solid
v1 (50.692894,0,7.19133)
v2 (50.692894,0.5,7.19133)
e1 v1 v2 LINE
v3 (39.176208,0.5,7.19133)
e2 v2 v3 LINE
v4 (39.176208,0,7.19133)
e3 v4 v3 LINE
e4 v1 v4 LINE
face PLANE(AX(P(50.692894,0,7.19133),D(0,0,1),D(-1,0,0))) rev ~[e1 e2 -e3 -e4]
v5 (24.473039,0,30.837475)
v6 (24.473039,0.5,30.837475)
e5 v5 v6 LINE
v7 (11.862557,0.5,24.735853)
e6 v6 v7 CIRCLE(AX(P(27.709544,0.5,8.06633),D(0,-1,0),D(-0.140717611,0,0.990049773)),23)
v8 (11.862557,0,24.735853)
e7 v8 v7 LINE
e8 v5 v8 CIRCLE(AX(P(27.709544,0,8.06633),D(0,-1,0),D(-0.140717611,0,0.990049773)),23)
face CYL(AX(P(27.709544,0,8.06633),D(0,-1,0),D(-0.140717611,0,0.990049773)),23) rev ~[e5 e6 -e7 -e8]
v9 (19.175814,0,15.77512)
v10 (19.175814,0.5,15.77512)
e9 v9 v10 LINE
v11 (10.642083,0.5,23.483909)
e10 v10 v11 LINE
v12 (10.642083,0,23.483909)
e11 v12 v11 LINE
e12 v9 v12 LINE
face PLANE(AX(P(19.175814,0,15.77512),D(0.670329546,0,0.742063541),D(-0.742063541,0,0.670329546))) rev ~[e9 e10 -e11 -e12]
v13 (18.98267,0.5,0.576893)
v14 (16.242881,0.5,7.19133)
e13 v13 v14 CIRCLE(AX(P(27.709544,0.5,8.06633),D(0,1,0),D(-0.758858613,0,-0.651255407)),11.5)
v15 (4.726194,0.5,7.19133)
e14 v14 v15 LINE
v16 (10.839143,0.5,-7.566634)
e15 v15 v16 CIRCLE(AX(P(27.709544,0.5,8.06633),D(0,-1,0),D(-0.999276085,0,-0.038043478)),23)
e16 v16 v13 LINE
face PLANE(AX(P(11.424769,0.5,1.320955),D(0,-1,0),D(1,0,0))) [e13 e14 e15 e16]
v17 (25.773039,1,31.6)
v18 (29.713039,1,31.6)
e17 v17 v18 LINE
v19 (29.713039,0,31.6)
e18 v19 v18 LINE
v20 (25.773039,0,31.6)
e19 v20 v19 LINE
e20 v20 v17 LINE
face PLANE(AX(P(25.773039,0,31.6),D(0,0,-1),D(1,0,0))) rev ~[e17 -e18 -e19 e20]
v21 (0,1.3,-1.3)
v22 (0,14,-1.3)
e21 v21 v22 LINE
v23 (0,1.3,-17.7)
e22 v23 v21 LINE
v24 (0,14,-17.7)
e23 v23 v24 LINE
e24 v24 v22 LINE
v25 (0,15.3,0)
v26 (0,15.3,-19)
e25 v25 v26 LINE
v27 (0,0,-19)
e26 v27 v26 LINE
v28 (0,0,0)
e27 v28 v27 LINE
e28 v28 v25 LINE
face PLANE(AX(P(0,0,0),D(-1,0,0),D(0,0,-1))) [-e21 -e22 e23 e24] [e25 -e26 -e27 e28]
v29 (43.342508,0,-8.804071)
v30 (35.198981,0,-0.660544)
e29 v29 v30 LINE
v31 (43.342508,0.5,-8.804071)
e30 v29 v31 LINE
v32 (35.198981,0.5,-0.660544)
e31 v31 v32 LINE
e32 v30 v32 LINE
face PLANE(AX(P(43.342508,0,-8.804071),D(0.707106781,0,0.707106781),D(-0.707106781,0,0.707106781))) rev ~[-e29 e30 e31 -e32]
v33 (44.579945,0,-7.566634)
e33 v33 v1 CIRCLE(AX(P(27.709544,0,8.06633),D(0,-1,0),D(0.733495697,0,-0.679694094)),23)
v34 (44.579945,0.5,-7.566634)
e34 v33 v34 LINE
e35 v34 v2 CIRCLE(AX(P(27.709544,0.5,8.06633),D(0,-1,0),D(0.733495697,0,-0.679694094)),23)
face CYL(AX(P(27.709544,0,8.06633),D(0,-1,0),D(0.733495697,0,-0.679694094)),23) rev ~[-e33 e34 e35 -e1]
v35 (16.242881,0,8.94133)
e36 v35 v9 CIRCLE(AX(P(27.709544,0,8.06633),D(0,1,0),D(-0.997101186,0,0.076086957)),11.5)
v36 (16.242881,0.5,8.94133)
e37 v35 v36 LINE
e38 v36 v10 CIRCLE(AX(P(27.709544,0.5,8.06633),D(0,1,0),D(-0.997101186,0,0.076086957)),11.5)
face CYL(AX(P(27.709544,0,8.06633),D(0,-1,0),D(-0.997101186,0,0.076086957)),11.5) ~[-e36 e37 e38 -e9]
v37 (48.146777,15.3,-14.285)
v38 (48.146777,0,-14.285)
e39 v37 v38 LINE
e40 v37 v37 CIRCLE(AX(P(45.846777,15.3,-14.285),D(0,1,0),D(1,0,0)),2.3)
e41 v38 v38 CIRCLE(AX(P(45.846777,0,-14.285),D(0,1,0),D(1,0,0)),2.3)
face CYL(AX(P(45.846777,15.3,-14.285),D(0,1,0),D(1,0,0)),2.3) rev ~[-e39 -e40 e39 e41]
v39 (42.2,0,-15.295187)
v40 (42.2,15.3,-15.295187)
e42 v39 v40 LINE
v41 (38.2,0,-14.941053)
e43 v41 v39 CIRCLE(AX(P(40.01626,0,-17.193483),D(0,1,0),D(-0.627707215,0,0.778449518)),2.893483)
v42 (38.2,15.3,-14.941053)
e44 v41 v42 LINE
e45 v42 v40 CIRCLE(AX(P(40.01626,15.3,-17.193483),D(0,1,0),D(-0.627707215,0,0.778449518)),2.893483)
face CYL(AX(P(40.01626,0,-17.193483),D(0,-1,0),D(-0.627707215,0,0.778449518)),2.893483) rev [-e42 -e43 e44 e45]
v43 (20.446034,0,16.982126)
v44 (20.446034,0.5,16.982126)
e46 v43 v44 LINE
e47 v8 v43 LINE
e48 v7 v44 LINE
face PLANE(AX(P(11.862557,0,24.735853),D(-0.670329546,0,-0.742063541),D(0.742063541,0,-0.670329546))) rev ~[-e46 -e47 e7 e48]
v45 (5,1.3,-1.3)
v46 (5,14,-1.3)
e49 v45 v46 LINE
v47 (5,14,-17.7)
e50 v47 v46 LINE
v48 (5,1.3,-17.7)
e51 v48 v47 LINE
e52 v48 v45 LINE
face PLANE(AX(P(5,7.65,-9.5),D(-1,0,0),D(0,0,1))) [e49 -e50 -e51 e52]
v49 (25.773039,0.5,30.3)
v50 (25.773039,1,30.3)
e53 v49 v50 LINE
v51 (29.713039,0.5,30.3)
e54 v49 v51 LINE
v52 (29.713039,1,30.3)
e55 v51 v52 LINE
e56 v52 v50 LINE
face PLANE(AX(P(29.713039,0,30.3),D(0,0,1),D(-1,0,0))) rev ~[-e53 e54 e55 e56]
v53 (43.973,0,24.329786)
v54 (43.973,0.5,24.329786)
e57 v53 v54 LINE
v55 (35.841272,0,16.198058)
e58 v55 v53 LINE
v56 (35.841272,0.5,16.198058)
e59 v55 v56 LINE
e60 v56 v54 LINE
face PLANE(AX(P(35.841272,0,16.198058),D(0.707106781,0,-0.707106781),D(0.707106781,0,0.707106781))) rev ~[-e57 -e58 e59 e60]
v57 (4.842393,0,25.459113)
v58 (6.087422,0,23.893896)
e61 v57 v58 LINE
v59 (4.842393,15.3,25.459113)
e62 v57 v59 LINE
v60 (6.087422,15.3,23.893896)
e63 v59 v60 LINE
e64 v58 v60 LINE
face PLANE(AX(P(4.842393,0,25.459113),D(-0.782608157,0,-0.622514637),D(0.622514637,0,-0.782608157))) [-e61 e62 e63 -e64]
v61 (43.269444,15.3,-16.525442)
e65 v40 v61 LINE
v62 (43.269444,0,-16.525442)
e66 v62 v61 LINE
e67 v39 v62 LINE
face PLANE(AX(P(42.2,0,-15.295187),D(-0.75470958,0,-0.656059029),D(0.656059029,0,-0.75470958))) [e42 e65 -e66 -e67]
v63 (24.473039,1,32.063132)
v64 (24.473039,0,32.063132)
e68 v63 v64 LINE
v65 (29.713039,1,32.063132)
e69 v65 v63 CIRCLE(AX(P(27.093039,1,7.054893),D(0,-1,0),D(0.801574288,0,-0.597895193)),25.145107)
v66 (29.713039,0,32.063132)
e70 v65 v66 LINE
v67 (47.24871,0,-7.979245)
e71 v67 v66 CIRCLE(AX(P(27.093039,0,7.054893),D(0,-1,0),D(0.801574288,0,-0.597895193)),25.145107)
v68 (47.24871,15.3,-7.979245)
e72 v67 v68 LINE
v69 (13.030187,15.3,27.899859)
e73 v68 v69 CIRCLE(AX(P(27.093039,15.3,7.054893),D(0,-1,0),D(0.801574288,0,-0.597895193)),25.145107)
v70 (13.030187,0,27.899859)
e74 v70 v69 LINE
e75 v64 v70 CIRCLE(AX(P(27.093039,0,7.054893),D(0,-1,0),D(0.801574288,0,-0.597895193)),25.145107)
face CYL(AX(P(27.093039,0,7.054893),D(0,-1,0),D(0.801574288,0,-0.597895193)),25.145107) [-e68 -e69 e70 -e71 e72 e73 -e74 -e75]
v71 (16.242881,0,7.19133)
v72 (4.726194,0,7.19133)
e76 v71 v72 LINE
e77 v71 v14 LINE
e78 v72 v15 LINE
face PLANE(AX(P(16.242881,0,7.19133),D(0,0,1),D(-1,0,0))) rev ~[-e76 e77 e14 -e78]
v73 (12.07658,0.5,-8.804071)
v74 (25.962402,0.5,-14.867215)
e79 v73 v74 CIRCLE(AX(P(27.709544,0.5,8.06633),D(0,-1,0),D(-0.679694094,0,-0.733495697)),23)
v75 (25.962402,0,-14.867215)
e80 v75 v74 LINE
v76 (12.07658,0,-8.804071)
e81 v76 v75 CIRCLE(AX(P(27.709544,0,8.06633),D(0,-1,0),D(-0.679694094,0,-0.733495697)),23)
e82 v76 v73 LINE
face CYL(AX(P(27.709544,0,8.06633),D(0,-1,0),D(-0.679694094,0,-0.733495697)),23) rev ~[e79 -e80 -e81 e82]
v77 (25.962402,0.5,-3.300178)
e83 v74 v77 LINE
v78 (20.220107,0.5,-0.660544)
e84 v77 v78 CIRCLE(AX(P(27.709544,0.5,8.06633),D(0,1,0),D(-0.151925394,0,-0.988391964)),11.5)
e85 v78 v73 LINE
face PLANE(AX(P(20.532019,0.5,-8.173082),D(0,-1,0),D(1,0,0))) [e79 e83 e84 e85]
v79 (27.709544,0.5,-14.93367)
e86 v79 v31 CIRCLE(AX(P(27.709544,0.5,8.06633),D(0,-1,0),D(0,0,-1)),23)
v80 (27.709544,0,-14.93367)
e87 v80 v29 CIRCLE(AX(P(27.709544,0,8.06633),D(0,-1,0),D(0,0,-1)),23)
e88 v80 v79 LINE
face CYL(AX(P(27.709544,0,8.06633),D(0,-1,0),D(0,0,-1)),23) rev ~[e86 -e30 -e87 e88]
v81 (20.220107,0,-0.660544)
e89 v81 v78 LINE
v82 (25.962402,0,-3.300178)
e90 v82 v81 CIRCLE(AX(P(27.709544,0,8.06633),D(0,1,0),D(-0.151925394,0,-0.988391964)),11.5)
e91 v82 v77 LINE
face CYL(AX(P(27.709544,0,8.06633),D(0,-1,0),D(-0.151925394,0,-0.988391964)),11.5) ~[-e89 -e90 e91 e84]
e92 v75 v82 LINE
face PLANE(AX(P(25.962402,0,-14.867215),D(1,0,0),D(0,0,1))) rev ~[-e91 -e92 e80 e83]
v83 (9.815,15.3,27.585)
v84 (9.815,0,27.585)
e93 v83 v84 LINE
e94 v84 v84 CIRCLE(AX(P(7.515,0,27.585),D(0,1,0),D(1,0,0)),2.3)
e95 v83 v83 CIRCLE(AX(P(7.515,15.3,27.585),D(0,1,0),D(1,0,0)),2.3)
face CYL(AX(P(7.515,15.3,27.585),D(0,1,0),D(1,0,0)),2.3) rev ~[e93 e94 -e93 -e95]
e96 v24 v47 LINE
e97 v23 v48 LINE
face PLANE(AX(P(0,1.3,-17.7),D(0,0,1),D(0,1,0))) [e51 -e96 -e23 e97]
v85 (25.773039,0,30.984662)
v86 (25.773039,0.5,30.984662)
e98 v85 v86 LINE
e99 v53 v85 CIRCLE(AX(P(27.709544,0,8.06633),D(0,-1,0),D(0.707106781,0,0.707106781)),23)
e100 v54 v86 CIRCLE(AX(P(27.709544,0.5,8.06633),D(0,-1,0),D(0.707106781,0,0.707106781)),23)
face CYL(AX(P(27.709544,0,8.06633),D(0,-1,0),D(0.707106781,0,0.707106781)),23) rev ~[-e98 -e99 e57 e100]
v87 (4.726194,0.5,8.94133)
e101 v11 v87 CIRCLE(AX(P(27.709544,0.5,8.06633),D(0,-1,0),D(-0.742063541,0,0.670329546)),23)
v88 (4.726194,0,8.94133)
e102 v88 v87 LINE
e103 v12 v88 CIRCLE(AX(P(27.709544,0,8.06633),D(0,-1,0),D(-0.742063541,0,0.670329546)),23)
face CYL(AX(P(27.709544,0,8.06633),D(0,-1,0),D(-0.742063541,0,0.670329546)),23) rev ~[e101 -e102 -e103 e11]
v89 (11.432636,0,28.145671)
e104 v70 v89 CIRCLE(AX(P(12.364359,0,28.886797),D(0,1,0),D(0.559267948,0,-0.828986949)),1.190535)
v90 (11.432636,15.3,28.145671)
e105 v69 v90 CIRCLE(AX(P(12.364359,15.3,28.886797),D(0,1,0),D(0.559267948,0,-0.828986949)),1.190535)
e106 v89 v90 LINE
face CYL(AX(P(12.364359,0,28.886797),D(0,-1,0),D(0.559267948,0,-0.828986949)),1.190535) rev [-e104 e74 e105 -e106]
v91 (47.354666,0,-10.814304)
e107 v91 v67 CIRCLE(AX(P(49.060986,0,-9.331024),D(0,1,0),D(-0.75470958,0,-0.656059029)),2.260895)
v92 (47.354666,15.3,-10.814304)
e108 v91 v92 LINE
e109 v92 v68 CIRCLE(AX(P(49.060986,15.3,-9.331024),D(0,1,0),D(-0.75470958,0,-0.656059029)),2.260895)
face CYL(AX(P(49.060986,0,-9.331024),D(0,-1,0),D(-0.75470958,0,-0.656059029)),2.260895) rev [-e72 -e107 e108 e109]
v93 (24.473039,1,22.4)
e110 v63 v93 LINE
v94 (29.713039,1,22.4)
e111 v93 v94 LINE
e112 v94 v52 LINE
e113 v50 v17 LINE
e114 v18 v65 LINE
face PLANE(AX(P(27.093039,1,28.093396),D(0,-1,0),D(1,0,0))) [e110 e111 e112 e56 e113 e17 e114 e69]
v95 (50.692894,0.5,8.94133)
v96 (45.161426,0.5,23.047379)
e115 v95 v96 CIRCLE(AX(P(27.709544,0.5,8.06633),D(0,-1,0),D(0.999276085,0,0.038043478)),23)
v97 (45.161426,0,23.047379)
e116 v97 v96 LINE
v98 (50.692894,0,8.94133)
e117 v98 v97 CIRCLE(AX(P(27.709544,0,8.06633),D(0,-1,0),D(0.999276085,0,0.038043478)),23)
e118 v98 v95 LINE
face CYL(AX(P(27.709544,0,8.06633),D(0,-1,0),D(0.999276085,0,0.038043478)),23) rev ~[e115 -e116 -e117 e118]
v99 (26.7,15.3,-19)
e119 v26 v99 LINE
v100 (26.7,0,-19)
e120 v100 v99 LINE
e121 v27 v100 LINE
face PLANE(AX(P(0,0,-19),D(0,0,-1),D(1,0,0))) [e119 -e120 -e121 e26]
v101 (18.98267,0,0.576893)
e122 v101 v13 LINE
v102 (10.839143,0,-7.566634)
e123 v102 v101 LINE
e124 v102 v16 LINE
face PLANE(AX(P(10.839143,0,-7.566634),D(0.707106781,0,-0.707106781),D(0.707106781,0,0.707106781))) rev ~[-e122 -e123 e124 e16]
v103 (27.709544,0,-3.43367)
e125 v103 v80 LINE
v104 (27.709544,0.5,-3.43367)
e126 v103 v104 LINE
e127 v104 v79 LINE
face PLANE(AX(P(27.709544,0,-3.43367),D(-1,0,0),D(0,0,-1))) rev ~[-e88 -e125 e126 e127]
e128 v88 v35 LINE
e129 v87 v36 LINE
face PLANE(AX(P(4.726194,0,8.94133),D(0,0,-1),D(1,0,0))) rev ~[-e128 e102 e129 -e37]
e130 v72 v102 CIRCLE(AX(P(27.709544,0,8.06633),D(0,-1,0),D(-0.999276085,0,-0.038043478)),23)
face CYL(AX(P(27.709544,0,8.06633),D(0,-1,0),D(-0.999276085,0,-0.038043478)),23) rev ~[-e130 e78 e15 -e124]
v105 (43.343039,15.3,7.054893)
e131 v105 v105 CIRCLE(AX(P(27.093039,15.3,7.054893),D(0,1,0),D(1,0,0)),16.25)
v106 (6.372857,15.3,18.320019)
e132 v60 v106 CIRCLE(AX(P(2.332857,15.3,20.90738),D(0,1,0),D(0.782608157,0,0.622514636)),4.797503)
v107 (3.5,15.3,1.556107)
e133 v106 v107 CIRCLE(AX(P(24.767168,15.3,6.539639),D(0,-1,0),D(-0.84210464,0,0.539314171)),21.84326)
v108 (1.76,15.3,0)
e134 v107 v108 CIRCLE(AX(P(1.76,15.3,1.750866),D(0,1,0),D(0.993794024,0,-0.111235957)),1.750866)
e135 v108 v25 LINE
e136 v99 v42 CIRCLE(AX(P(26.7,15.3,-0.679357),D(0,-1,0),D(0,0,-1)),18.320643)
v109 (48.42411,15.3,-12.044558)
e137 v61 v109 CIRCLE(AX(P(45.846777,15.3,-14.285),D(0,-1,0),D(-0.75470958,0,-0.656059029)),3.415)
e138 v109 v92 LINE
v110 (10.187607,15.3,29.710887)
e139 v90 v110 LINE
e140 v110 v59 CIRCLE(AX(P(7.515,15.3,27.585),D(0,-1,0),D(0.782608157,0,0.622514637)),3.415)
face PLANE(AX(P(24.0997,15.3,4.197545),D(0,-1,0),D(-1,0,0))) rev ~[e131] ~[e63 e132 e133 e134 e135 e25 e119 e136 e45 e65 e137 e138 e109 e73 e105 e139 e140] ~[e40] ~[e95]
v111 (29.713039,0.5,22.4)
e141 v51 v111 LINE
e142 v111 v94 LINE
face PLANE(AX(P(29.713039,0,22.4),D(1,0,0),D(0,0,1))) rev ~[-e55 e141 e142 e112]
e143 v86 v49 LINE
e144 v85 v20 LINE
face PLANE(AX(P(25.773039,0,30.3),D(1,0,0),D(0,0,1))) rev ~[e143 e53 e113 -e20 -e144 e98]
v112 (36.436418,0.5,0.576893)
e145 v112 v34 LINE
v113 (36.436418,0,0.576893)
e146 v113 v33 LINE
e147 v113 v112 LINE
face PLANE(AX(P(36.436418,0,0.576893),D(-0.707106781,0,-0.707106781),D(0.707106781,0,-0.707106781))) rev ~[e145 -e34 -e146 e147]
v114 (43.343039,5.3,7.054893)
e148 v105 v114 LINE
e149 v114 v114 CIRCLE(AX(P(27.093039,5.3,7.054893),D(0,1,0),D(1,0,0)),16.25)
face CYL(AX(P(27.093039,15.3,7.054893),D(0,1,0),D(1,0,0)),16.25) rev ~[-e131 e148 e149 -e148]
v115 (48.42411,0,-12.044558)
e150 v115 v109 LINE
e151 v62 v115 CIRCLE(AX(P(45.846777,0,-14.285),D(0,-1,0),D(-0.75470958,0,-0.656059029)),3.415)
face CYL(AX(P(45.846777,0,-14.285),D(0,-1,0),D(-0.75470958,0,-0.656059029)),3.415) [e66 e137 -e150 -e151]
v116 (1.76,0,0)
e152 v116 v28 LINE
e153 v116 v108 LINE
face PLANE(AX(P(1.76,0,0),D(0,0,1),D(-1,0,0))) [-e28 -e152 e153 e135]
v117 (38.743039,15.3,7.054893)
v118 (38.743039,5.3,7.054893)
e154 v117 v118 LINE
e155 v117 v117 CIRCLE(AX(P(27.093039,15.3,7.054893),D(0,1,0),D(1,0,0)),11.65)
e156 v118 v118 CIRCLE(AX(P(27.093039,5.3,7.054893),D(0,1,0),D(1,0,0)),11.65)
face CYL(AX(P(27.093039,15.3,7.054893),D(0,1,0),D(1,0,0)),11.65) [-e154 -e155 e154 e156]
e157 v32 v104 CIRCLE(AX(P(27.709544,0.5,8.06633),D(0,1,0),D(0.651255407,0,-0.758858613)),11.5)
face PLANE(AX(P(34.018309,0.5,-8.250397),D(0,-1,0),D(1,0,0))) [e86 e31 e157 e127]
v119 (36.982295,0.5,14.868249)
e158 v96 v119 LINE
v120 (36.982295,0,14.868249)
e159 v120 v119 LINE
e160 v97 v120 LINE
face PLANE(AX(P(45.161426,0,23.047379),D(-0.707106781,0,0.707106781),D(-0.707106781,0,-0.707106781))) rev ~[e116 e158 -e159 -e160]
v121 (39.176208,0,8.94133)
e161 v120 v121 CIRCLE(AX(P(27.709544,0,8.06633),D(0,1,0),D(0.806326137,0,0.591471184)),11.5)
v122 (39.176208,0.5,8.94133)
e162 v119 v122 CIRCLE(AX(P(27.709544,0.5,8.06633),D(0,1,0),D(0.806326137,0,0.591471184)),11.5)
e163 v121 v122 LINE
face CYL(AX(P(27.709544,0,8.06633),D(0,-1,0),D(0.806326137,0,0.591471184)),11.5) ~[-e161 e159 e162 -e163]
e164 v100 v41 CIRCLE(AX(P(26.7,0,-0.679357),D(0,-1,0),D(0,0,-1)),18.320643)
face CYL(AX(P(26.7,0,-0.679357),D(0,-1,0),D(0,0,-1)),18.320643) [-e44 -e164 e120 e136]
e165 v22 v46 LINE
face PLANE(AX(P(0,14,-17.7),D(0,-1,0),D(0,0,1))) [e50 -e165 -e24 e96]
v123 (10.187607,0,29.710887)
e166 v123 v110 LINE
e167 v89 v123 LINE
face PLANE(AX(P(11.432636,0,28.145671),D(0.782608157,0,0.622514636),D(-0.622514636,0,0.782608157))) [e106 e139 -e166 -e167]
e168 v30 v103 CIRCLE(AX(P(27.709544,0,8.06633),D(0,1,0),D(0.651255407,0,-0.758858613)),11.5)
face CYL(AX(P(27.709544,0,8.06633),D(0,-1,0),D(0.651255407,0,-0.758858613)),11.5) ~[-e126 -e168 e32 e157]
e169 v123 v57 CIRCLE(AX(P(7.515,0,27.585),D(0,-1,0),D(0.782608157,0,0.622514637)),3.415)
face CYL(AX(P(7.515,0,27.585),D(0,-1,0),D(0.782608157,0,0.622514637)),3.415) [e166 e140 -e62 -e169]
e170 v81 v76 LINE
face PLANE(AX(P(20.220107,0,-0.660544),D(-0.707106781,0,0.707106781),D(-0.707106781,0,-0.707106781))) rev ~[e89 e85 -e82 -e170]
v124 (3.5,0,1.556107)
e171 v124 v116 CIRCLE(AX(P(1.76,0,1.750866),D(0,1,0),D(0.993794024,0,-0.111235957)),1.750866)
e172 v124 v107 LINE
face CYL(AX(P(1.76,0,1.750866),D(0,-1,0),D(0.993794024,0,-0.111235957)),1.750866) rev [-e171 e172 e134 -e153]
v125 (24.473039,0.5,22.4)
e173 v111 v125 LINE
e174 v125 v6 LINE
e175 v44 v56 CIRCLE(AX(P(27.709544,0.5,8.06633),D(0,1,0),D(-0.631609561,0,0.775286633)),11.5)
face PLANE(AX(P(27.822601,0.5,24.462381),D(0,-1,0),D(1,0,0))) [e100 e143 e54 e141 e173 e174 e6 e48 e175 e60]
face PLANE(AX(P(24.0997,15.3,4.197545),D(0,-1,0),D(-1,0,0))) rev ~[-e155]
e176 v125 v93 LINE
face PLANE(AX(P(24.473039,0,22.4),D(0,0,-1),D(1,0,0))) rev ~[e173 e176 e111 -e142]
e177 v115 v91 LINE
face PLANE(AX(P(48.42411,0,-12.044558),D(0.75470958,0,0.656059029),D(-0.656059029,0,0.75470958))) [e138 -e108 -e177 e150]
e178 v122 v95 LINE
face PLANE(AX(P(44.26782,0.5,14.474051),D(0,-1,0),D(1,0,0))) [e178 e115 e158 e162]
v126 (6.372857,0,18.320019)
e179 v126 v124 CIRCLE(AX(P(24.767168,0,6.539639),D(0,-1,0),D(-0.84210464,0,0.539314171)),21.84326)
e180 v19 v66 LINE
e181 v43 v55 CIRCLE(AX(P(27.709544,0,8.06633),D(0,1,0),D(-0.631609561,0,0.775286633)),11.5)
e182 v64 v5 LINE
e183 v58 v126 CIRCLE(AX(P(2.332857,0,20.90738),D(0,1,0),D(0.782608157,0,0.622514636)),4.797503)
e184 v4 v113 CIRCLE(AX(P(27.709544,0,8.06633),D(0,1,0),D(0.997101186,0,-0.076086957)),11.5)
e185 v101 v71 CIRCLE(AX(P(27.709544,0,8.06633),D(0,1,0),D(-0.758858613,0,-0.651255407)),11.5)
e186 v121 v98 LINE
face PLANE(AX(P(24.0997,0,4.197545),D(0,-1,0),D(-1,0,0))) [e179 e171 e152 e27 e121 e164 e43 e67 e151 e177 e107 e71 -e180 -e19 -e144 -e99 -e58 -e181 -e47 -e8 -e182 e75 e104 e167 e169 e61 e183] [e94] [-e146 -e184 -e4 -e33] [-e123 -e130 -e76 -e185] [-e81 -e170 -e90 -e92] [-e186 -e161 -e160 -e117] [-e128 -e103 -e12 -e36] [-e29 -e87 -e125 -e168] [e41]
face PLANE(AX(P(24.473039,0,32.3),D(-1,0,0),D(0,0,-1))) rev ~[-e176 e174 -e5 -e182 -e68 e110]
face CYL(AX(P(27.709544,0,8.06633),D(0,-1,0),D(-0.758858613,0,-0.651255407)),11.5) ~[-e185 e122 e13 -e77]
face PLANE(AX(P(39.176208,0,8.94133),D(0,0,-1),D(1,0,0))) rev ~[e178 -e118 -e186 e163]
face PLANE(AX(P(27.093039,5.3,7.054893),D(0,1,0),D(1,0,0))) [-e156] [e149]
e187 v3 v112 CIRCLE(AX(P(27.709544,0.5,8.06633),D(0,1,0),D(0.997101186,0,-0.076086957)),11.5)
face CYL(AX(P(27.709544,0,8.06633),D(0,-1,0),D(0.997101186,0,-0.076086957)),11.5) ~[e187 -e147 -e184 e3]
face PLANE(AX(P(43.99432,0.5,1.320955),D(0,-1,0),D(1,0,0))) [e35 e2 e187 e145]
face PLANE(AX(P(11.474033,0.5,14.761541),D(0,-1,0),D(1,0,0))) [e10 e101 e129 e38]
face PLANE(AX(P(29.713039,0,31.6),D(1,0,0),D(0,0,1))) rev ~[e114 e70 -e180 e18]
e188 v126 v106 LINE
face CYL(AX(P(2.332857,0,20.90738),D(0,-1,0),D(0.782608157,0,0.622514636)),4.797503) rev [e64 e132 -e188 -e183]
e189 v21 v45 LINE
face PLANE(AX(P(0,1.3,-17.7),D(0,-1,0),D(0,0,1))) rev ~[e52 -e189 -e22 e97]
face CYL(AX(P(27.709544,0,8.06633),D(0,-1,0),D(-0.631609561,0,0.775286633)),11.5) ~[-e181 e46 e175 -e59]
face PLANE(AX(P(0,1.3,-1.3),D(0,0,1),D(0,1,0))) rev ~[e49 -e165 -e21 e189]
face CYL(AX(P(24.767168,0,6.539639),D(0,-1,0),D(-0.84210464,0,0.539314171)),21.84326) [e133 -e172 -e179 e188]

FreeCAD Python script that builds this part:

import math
import FreeCAD as App
import Part
import Sketcher
from FreeCAD import Vector
Q = App.Units.Quantity

doc = App.newDocument("Part")
body = doc.addObject("PartDesign::Body", "Body")

sketch1 = doc.addObject("Sketcher::SketchObject", "Sketch")
body.addObject(sketch1)
sketch1.AttachmentSupport = (doc.XZ_Plane, [""])
sketch1.MapMode = "FlatFace"
sketch1.addGeometry(Part.LineSegment(Vector(0, -19, 0), Vector(0, 0, 0)), False)
sketch1.addGeometry(Part.LineSegment(Vector(0, 0, 0), Vector(1.8, 0, 0)), False)
sketch1.addGeometry(Part.ArcOfCircle(Part.Circle(Vector(1.8, 1.8, 0), Vector(0, 0, 1), 1.8), math.radians(-90), math.radians(-6)), False)
sketch1.addGeometry(Part.ArcOfCircle(Part.Circle(Vector(24.8, 6.5, 0), Vector(0, 0, 1), 21.8), math.radians(147), math.radians(193)), False)
sketch1.addGeometry(Part.ArcOfCircle(Part.Circle(Vector(2.3, 20.9, 0), Vector(0, 0, 1), 4.8), math.radians(-33), math.radians(38)), False)
sketch1.addGeometry(Part.LineSegment(Vector(6.1, 23.9, 0), Vector(4.8, 25.5, 0)), False)
sketch1.addGeometry(Part.ArcOfCircle(Part.Circle(Vector(7.5, 27.6, 0), Vector(0, 0, 1), 3.4), math.radians(38), math.radians(218)), False)
sketch1.addGeometry(Part.LineSegment(Vector(10.2, 29.7, 0), Vector(11.4, 28.1, 0)), False)
sketch1.addGeometry(Part.ArcOfCircle(Part.Circle(Vector(12.4, 28.9, 0), Vector(0, 0, 1), 1.2), math.radians(-141), math.radians(-56)), False)
sketch1.addGeometry(Part.ArcOfCircle(Part.Circle(Vector(27.1, 7.1, 0), Vector(0, 0, 1), 25.1), math.radians(-37), math.radians(124)), False)
sketch1.addGeometry(Part.ArcOfCircle(Part.Circle(Vector(49.1, -9.3, 0), Vector(0, 0, 1), 2.3), math.radians(143), math.radians(221)), False)
sketch1.addGeometry(Part.LineSegment(Vector(47.4, -10.8, 0), Vector(48.4, -12, 0)), False)
sketch1.addGeometry(Part.ArcOfCircle(Part.Circle(Vector(45.8, -14.3, 0), Vector(0, 0, 1), 3.4), math.radians(-139), math.radians(41)), False)
sketch1.addGeometry(Part.LineSegment(Vector(43.3, -16.5, 0), Vector(42.2, -15.3, 0)), False)
sketch1.addGeometry(Part.ArcOfCircle(Part.Circle(Vector(40, -17.2, 0), Vector(0, 0, 1), 2.9), math.radians(41), math.radians(129)), False)
sketch1.addGeometry(Part.ArcOfCircle(Part.Circle(Vector(26.7, -0.7, 0), Vector(0, 0, 1), 18.3), math.radians(-90), math.radians(-51)), False)
sketch1.addGeometry(Part.LineSegment(Vector(26.7, -19, 0), Vector(0, -19, 0)), False)
sketch1.addConstraint(Sketcher.Constraint("Coincident", 0, 2, 1, 1))
sketch1.addConstraint(Sketcher.Constraint("Tangent", 1, 2, 2, 1))
sketch1.addConstraint(Sketcher.Constraint("Coincident", 2, 2, 3, 2))
sketch1.addConstraint(Sketcher.Constraint("Tangent", 3, 1, 4, 1))
sketch1.addConstraint(Sketcher.Constraint("Tangent", 4, 2, 5, 1))
sketch1.addConstraint(Sketcher.Constraint("Tangent", 5, 2, 6, 2))
sketch1.addConstraint(Sketcher.Constraint("Tangent", 6, 1, 7, 1))
sketch1.addConstraint(Sketcher.Constraint("Tangent", 7, 2, 8, 1))
sketch1.addConstraint(Sketcher.Constraint("Tangent", 8, 2, 9, 2))
sketch1.addConstraint(Sketcher.Constraint("Tangent", 9, 1, 10, 1))
sketch1.addConstraint(Sketcher.Constraint("Tangent", 10, 2, 11, 1))
sketch1.addConstraint(Sketcher.Constraint("Tangent", 11, 2, 12, 2))
sketch1.addConstraint(Sketcher.Constraint("Tangent", 12, 1, 13, 1))
sketch1.addConstraint(Sketcher.Constraint("Tangent", 13, 2, 14, 1))
sketch1.addConstraint(Sketcher.Constraint("Tangent", 14, 2, 15, 2))
sketch1.addConstraint(Sketcher.Constraint("Tangent", 15, 1, 16, 1))
sketch1.addConstraint(Sketcher.Constraint("Coincident", 16, 2, 0, 1))
sketch1.addConstraint(Sketcher.Constraint("Vertical", 0))
sketch1.addConstraint(Sketcher.Constraint("Horizontal", 1))
sketch1.addConstraint(Sketcher.Constraint("Horizontal", 16))
sketch1.addConstraint(Sketcher.Constraint("Coincident", 0, 2, -1, 1))
sketch1.addConstraint(Sketcher.Constraint("Equal", 6, 12))
sketch1.addConstraint(Sketcher.Constraint("Parallel", 5, 7))
sketch1.addConstraint(Sketcher.Constraint("Parallel", 11, 13))
sketch1.addConstraint(Sketcher.Constraint("Equal", 5, 7))
sketch1.addConstraint(Sketcher.Constraint("Equal", 11, 13))
sketch1.addConstraint(Sketcher.Constraint("DistanceY", 0, 1, 0, 2, Q("19 mm")))
sketch1.addConstraint(Sketcher.Constraint("Angle", 11, Q("-49 deg")))
sketch1.addConstraint(Sketcher.Constraint("Distance", 5, Q("2 mm")))
sketch1.addConstraint(Sketcher.Constraint("DistanceX", 16, 2, 16, 1, Q("26.7 mm")))
sketch1.addConstraint(Sketcher.Constraint("Angle", 5, Q("128.5 deg")))
sketch1.addConstraint(Sketcher.Constraint("Radius", 6, Q("3.415 mm")))
sketch1.addConstraint(Sketcher.Constraint("DistanceX", 14, 2, 13, 2, Q("4 mm")))
sketch1.addConstraint(Sketcher.Constraint("DistanceX", 1, 1, 1, 2, Q("1.76 mm")))
sketch1.addConstraint(Sketcher.Constraint("DistanceX", -1, 1, 2, 2, Q("3.5 mm")))
sketch1.addConstraint(Sketcher.Constraint("DistanceX", -1, 1, 13, 2, Q("42.2 mm")))
sketch1.addConstraint(Sketcher.Constraint("Radius", 3, Q("21.84326 mm")))
sketch1.addConstraint(Sketcher.Constraint("DistanceX", 4, 3, 3, 1, Q("4.04 mm")))
sketch1.addConstraint(Sketcher.Constraint("DistanceX", -1, 1, 6, 3, Q("7.515 mm")))
sketch1.addConstraint(Sketcher.Constraint("DistanceY", -1, 1, 6, 3, Q("27.585 mm")))
sketch1.addConstraint(Sketcher.Constraint("DistanceY", 12, 3, -1, 1, Q("14.285 mm")))
sketch1.addConstraint(Sketcher.Constraint("Radius", 2, Q("1.750866 mm")))
sketch1.addConstraint(Sketcher.Constraint("Radius", 8, Q("1.190535 mm")))
sketch1.addConstraint(Sketcher.Constraint("Radius", 9, Q("25.145107 mm")))
sketch1.addConstraint(Sketcher.Constraint("Radius", 10, Q("2.260895 mm")))
sketch1.addConstraint(Sketcher.Constraint("Radius", 14, Q("2.893483 mm")))
pad1 = doc.addObject("PartDesign::Pad", "Pad")
body.addObject(pad1)
pad1.Profile = sketch1
pad1.Length = 15.3
pad1.Reversed = True

sketch2 = doc.addObject("Sketcher::SketchObject", "Sketch001")
body.addObject(sketch2)
sketch2.AttachmentSupport = (doc.XZ_Plane, [""])
sketch2.MapMode = "FlatFace"
sketch2.AttachmentOffset = App.Placement(Vector(0, 0, -15.3), App.Rotation())
sketch2.addGeometry(Part.Circle(Vector(45.8, -14.3, 0), Vector(0, 0, 1), 2.3), False)
sketch2.addGeometry(Part.Circle(Vector(7.5, 27.6, 0), Vector(0, 0, 1), 2.3), False)
sketch2.addConstraint(Sketcher.Constraint("Equal", 0, 1))
sketch2.addConstraint(Sketcher.Constraint("Diameter", 0, Q("4.6 mm")))
sketch2.addConstraint(Sketcher.Constraint("DistanceY", 0, 3, 1, 3, Q("41.87 mm")))
sketch2.addConstraint(Sketcher.Constraint("DistanceY", 0, 3, -1, 1, Q("14.285 mm")))
sketch2.addConstraint(Sketcher.Constraint("DistanceX", -1, 1, 1, 3, Q("7.515 mm")))
sketch2.addConstraint(Sketcher.Constraint("DistanceX", -1, 1, 0, 3, Q("45.846777 mm")))
pocket1 = doc.addObject("PartDesign::Pocket", "Pocket")
body.addObject(pocket1)
pocket1.Profile = sketch2
pocket1.Type = "ThroughAll"
pocket1.Reversed = True

sketch3 = doc.addObject("Sketcher::SketchObject", "Sketch002")
body.addObject(sketch3)
sketch3.AttachmentSupport = (doc.XZ_Plane, [""])
sketch3.MapMode = "FlatFace"
sketch3.AttachmentOffset = App.Placement(Vector(0, 0, -15.3), App.Rotation())
sketch3.addGeometry(Part.Circle(Vector(27, 7, 0), Vector(0, 0, 1), 16), False)
sketch3.addGeometry(Part.Circle(Vector(27, 7, 0), Vector(0, 0, 1), 12), False)
sketch3.addConstraint(Sketcher.Constraint("Coincident", 1, 3, 0, 3))
sketch3.addConstraint(Sketcher.Constraint("Diameter", 0, Q("32.5 mm")))
sketch3.addConstraint(Sketcher.Constraint("Diameter", 1, Q("23.3 mm")))
sketch3.addConstraint(Sketcher.Constraint("DistanceX", -1, 1, 0, 3, Q("27.093039 mm")))
sketch3.addConstraint(Sketcher.Constraint("DistanceY", -1, 1, 0, 3, Q("7.054893 mm")))
pocket2 = doc.addObject("PartDesign::Pocket", "Pocket001")
body.addObject(pocket2)
pocket2.Profile = sketch3
pocket2.Length = 10
pocket2.Reversed = True

sketch4 = doc.addObject("Sketcher::SketchObject", "Sketch003")
body.addObject(sketch4)
sketch4.AttachmentSupport = (doc.YZ_Plane, [""])
sketch4.MapMode = "FlatFace"
sketch4.addGeometry(Part.LineSegment(Vector(14, -18, 0), Vector(1, -18, 0)), False)
sketch4.addGeometry(Part.LineSegment(Vector(1, -18, 0), Vector(1, -1, 0)), False)
sketch4.addGeometry(Part.LineSegment(Vector(1, -1, 0), Vector(14, -1, 0)), False)
sketch4.addGeometry(Part.LineSegment(Vector(14, -1, 0), Vector(14, -18, 0)), False)
sketch4.addConstraint(Sketcher.Constraint("Coincident", 0, 2, 1, 1))
sketch4.addConstraint(Sketcher.Constraint("Coincident", 1, 2, 2, 1))
sketch4.addConstraint(Sketcher.Constraint("Coincident", 2, 2, 3, 1))
sketch4.addConstraint(Sketcher.Constraint("Coincident", 3, 2, 0, 1))
sketch4.addConstraint(Sketcher.Constraint("Horizontal", 0))
sketch4.addConstraint(Sketcher.Constraint("Vertical", 1))
sketch4.addConstraint(Sketcher.Constraint("Horizontal", 2))
sketch4.addConstraint(Sketcher.Constraint("Vertical", 3))
sketch4.addConstraint(Sketcher.Constraint("DistanceX", 0, 2, 0, 1, Q("12.7 mm")))
sketch4.addConstraint(Sketcher.Constraint("DistanceY", 1, 1, 1, 2, Q("16.4 mm")))
sketch4.addConstraint(Sketcher.Constraint("DistanceX", -1, 1, 2, 2, Q("14 mm")))
sketch4.addConstraint(Sketcher.Constraint("DistanceY", 0, 2, -1, 1, Q("17.7 mm")))
pocket3 = doc.addObject("PartDesign::Pocket", "Pocket002")
body.addObject(pocket3)
pocket3.Profile = sketch4
pocket3.Length = 5
pocket3.Reversed = True

sketch5 = doc.addObject("Sketcher::SketchObject", "Sketch004")
body.addObject(sketch5)
sketch5.AttachmentSupport = (doc.XZ_Plane, [""])
sketch5.MapMode = "FlatFace"
sketch5.addGeometry(Part.LineSegment(Vector(24.5, 32.3, 0), Vector(24.5, 22.4, 0)), False)
sketch5.addGeometry(Part.LineSegment(Vector(24.5, 22.4, 0), Vector(29.7, 22.4, 0)), False)
sketch5.addGeometry(Part.LineSegment(Vector(29.7, 22.4, 0), Vector(29.7, 30.3, 0)), False)
sketch5.addGeometry(Part.LineSegment(Vector(29.7, 30.3, 0), Vector(25.8, 30.3, 0)), False)
sketch5.addGeometry(Part.LineSegment(Vector(25.8, 30.3, 0), Vector(25.8, 31.6, 0)), False)
sketch5.addGeometry(Part.LineSegment(Vector(25.8, 31.6, 0), Vector(29.7, 31.6, 0)), False)
sketch5.addGeometry(Part.LineSegment(Vector(29.7, 31.6, 0), Vector(29.7, 32.3, 0)), False)
sketch5.addGeometry(Part.LineSegment(Vector(29.7, 32.3, 0), Vector(24.5, 32.3, 0)), False)
sketch5.addConstraint(Sketcher.Constraint("Coincident", 0, 2, 1, 1))
sketch5.addConstraint(Sketcher.Constraint("Coincident", 1, 2, 2, 1))
sketch5.addConstraint(Sketcher.Constraint("Coincident", 2, 2, 3, 1))
sketch5.addConstraint(Sketcher.Constraint("Coincident", 3, 2, 4, 1))
sketch5.addConstraint(Sketcher.Constraint("Coincident", 4, 2, 5, 1))
sketch5.addConstraint(Sketcher.Constraint("Coincident", 5, 2, 6, 1))
sketch5.addConstraint(Sketcher.Constraint("Coincident", 6, 2, 7, 1))
sketch5.addConstraint(Sketcher.Constraint("Coincident", 7, 2, 0, 1))
sketch5.addConstraint(Sketcher.Constraint("Vertical", 0))
sketch5.addConstraint(Sketcher.Constraint("Horizontal", 1))
sketch5.addConstraint(Sketcher.Constraint("Vertical", 2))
sketch5.addConstraint(Sketcher.Constraint("Horizontal", 3))
sketch5.addConstraint(Sketcher.Constraint("Vertical", 4))
sketch5.addConstraint(Sketcher.Constraint("Horizontal", 5))
sketch5.addConstraint(Sketcher.Constraint("Vertical", 6))
sketch5.addConstraint(Sketcher.Constraint("Horizontal", 7))
sketch5.addConstraint(Sketcher.Constraint("Vertical", 2, 2, 5, 2))
sketch5.addConstraint(Sketcher.Constraint("DistanceY", 0, 2, 0, 1, Q("9.9 mm")))
sketch5.addConstraint(Sketcher.Constraint("DistanceY", 2, 1, 2, 2, Q("7.9 mm")))
sketch5.addConstraint(Sketcher.Constraint("DistanceY", 4, 1, 4, 2, Q("1.3 mm")))
sketch5.addConstraint(Sketcher.Constraint("DistanceX", 1, 1, 1, 2, Q("5.24 mm")))
sketch5.addConstraint(Sketcher.Constraint("DistanceX", 3, 2, 3, 1, Q("3.94 mm")))
sketch5.addConstraint(Sketcher.Constraint("DistanceY", -1, 1, 0, 2, Q("22.4 mm")))
sketch5.addConstraint(Sketcher.Constraint("DistanceX", -1, 1, 0, 2, Q("24.473039 mm")))
pocket4 = doc.addObject("PartDesign::Pocket", "Pocket003")
body.addObject(pocket4)
pocket4.Profile = sketch5
pocket4.Length = 1

sketch6 = doc.addObject("Sketcher::SketchObject", "Sketch005")
body.addObject(sketch6)
sketch6.AttachmentSupport = (doc.XZ_Plane, [""])
sketch6.MapMode = "FlatFace"
sketch6.addGeometry(Part.ArcOfCircle(Part.Circle(Vector(27.7, 8.1, 0), Vector(0, 0, 1), 11.5), math.radians(45), math.radians(129)), False)
sketch6.addGeometry(Part.LineSegment(Vector(35.8, 16.2, 0), Vector(44, 24.3, 0)), False)
sketch6.addGeometry(Part.ArcOfCircle(Part.Circle(Vector(27.7, 8.1, 0), Vector(0, 0, 1), 23), math.radians(45), math.radians(95)), False)
sketch6.addGeometry(Part.LineSegment(Vector(25.8, 31, 0), Vector(25.8, 30.3, 0)), False)
sketch6.addGeometry(Part.LineSegment(Vector(25.8, 30.3, 0), Vector(29.7, 30.3, 0)), False)
sketch6.addGeometry(Part.LineSegment(Vector(29.7, 30.3, 0), Vector(29.7, 22.4, 0)), False)
sketch6.addGeometry(Part.LineSegment(Vector(29.7, 22.4, 0), Vector(24.5, 22.4, 0)), False)
sketch6.addGeometry(Part.LineSegment(Vector(24.5, 22.4, 0), Vector(24.5, 30.8, 0)), False)
sketch6.addGeometry(Part.ArcOfCircle(Part.Circle(Vector(27.7, 8.1, 0), Vector(0, 0, 1), 23), math.radians(98), math.radians(134)), False)
sketch6.addGeometry(Part.LineSegment(Vector(11.9, 24.7, 0), Vector(20.4, 17, 0)), False)
sketch6.addGeometry(Part.ArcOfCircle(Part.Circle(Vector(27.7, 8.1, 0), Vector(0, 0, 1), 11.5), math.radians(138), math.radians(176)), False)
sketch6.addGeometry(Part.LineSegment(Vector(19.2, 15.8, 0), Vector(10.6, 23.5, 0)), False)
sketch6.addGeometry(Part.ArcOfCircle(Part.Circle(Vector(27.7, 8.1, 0), Vector(0, 0, 1), 23), math.radians(138), math.radians(178)), False)
sketch6.addGeometry(Part.LineSegment(Vector(4.7, 8.9, 0), Vector(16.2, 8.9, 0)), False)
sketch6.addGeometry(Part.ArcOfCircle(Part.Circle(Vector(27.7, 8.1, 0), Vector(0, 0, 1), 11.5), math.radians(-176), math.radians(-139)), False)
sketch6.addGeometry(Part.LineSegment(Vector(16.2, 7.2, 0), Vector(4.7, 7.2, 0)), False)
sketch6.addGeometry(Part.ArcOfCircle(Part.Circle(Vector(27.7, 8.1, 0), Vector(0, 0, 1), 23), math.radians(-178), math.radians(-137)), False)
sketch6.addGeometry(Part.LineSegment(Vector(10.8, -7.6, 0), Vector(19, 0.6, 0)), False)
sketch6.addGeometry(Part.ArcOfCircle(Part.Circle(Vector(27.7, 8.1, 0), Vector(0, 0, 1), 11.5), math.radians(-131), math.radians(-99)), False)
sketch6.addGeometry(Part.LineSegment(Vector(20.2, -0.7, 0), Vector(12.1, -8.8, 0)), False)
sketch6.addGeometry(Part.ArcOfCircle(Part.Circle(Vector(27.7, 8.1, 0), Vector(0, 0, 1), 23), math.radians(-133), math.radians(-94)), False)
sketch6.addGeometry(Part.LineSegment(Vector(26, -14.9, 0), Vector(26, -3.3, 0)), False)
sketch6.addGeometry(Part.LineSegment(Vector(43.3, -8.8, 0), Vector(35.2, -0.7, 0)), False)
sketch6.addGeometry(Part.ArcOfCircle(Part.Circle(Vector(27.7, 8.1, 0), Vector(0, 0, 1), 11.5), math.radians(-90), math.radians(-49)), False)
sketch6.addGeometry(Part.LineSegment(Vector(27.7, -3.4, 0), Vector(27.7, -14.9, 0)), False)
sketch6.addGeometry(Part.ArcOfCircle(Part.Circle(Vector(27.7, 8.1, 0), Vector(0, 0, 1), 23), math.radians(-90), math.radians(-47)), False)
sketch6.addGeometry(Part.LineSegment(Vector(50.7, 7.2, 0), Vector(39.2, 7.2, 0)), False)
sketch6.addGeometry(Part.ArcOfCircle(Part.Circle(Vector(27.7, 8.1, 0), Vector(0, 0, 1), 11.5), math.radians(-41), math.radians(-4)), False)
sketch6.addGeometry(Part.LineSegment(Vector(36.4, 0.6, 0), Vector(44.6, -7.6, 0)), False)
sketch6.addGeometry(Part.ArcOfCircle(Part.Circle(Vector(27.7, 8.1, 0), Vector(0, 0, 1), 23), math.radians(-43), math.radians(-2)), False)
sketch6.addGeometry(Part.LineSegment(Vector(45.2, 23, 0), Vector(37, 14.9, 0)), False)
sketch6.addGeometry(Part.ArcOfCircle(Part.Circle(Vector(27.7, 8.1, 0), Vector(0, 0, 1), 11.5), math.radians(4), math.radians(36)), False)
sketch6.addGeometry(Part.LineSegment(Vector(39.2, 8.9, 0), Vector(50.7, 8.9, 0)), False)
sketch6.addGeometry(Part.ArcOfCircle(Part.Circle(Vector(27.7, 8.1, 0), Vector(0, 0, 1), 23), math.radians(2), math.radians(41)), False)
sketch6.addConstraint(Sketcher.Constraint("Coincident", 0, 1, 1, 1))
sketch6.addConstraint(Sketcher.Constraint("Coincident", 1, 2, 2, 1))
sketch6.addConstraint(Sketcher.Constraint("Coincident", 2, 2, 3, 1))
sketch6.addConstraint(Sketcher.Constraint("Coincident", 3, 2, 4, 1))
sketch6.addConstraint(Sketcher.Constraint("Coincident", 4, 2, 5, 1))
sketch6.addConstraint(Sketcher.Constraint("Coincident", 5, 2, 6, 1))
sketch6.addConstraint(Sketcher.Constraint("Coincident", 6, 2, 7, 1))
sketch6.addConstraint(Sketcher.Constraint("Coincident", 7, 2, 8, 1))
sketch6.addConstraint(Sketcher.Constraint("Coincident", 8, 2, 9, 1))
sketch6.addConstraint(Sketcher.Constraint("Coincident", 9, 2, 0, 2))
sketch6.addConstraint(Sketcher.Constraint("Coincident", 10, 1, 11, 1))
sketch6.addConstraint(Sketcher.Constraint("Coincident", 11, 2, 12, 1))
sketch6.addConstraint(Sketcher.Constraint("Coincident", 12, 2, 13, 1))
sketch6.addConstraint(Sketcher.Constraint("Coincident", 13, 2, 10, 2))
sketch6.addConstraint(Sketcher.Constraint("Coincident", 14, 1, 15, 1))
sketch6.addConstraint(Sketcher.Constraint("Coincident", 15, 2, 16, 1))
sketch6.addConstraint(Sketcher.Constraint("Coincident", 16, 2, 17, 1))
sketch6.addConstraint(Sketcher.Constraint("Coincident", 17, 2, 14, 2))
sketch6.addConstraint(Sketcher.Constraint("Coincident", 18, 1, 19, 1))
sketch6.addConstraint(Sketcher.Constraint("Coincident", 19, 2, 20, 1))
sketch6.addConstraint(Sketcher.Constraint("Coincident", 20, 2, 21, 1))
sketch6.addConstraint(Sketcher.Constraint("Coincident", 21, 2, 18, 2))
sketch6.addConstraint(Sketcher.Constraint("Coincident", 22, 2, 23, 2))
sketch6.addConstraint(Sketcher.Constraint("Coincident", 23, 1, 24, 1))
sketch6.addConstraint(Sketcher.Constraint("Coincident", 24, 2, 25, 1))
sketch6.addConstraint(Sketcher.Constraint("Coincident", 25, 2, 22, 1))
sketch6.addConstraint(Sketcher.Constraint("Coincident", 26, 2, 27, 2))
sketch6.addConstraint(Sketcher.Constraint("Coincident", 27, 1, 28, 1))
sketch6.addConstraint(Sketcher.Constraint("Coincident", 28, 2, 29, 1))
sketch6.addConstraint(Sketcher.Constraint("Coincident", 29, 2, 26, 1))
sketch6.addConstraint(Sketcher.Constraint("Coincident", 30, 2, 31, 2))
sketch6.addConstraint(Sketcher.Constraint("Coincident", 31, 1, 32, 1))
sketch6.addConstraint(Sketcher.Constraint("Coincident", 32, 2, 33, 1))
sketch6.addConstraint(Sketcher.Constraint("Coincident", 33, 2, 30, 1))
sketch6.addConstraint(Sketcher.Constraint("Vertical", 3))
sketch6.addConstraint(Sketcher.Constraint("Horizontal", 4))
sketch6.addConstraint(Sketcher.Constraint("Vertical", 5))
sketch6.addConstraint(Sketcher.Constraint("Horizontal", 6))
sketch6.addConstraint(Sketcher.Constraint("Vertical", 7))
sketch6.addConstraint(Sketcher.Constraint("Horizontal", 13))
sketch6.addConstraint(Sketcher.Constraint("Horizontal", 15))
sketch6.addConstraint(Sketcher.Constraint("Vertical", 21))
sketch6.addConstraint(Sketcher.Constraint("Vertical", 24))
sketch6.addConstraint(Sketcher.Constraint("Horizontal", 26))
sketch6.addConstraint(Sketcher.Constraint("Horizontal", 32))
sketch6.addConstraint(Sketcher.Constraint("Coincident", 2, 3, 0, 3))
sketch6.addConstraint(Sketcher.Constraint("Coincident", 8, 3, 0, 3))
sketch6.addConstraint(Sketcher.Constraint("Coincident", 10, 3, 0, 3))
sketch6.addConstraint(Sketcher.Constraint("Coincident", 12, 3, 0, 3))
sketch6.addConstraint(Sketcher.Constraint("Coincident", 14, 3, 0, 3))
sketch6.addConstraint(Sketcher.Constraint("Coincident", 16, 3, 0, 3))
sketch6.addConstraint(Sketcher.Constraint("Coincident", 18, 3, 0, 3))
sketch6.addConstraint(Sketcher.Constraint("Coincident", 20, 3, 0, 3))
sketch6.addConstraint(Sketcher.Constraint("Coincident", 23, 3, 0, 3))
sketch6.addConstraint(Sketcher.Constraint("Coincident", 25, 3, 0, 3))
sketch6.addConstraint(Sketcher.Constraint("Coincident", 27, 3, 0, 3))
sketch6.addConstraint(Sketcher.Constraint("Coincident", 29, 3, 0, 3))
sketch6.addConstraint(Sketcher.Constraint("Coincident", 31, 3, 0, 3))
sketch6.addConstraint(Sketcher.Constraint("Coincident", 33, 3, 0, 3))
sketch6.addConstraint(Sketcher.Constraint("Equal", 2, 8))
sketch6.addConstraint(Sketcher.Constraint("Equal", 0, 10))
sketch6.addConstraint(Sketcher.Constraint("Equal", 8, 12))
sketch6.addConstraint(Sketcher.Constraint("Equal", 10, 14))
sketch6.addConstraint(Sketcher.Constraint("Equal", 12, 16))
sketch6.addConstraint(Sketcher.Constraint("Equal", 14, 18))
sketch6.addConstraint(Sketcher.Constraint("Equal", 16, 20))
sketch6.addConstraint(Sketcher.Constraint("Equal", 18, 23))
sketch6.addConstraint(Sketcher.Constraint("Equal", 20, 25))
sketch6.addConstraint(Sketcher.Constraint("Equal", 23, 27))
sketch6.addConstraint(Sketcher.Constraint("Equal", 25, 29))
sketch6.addConstraint(Sketcher.Constraint("Equal", 27, 31))
sketch6.addConstraint(Sketcher.Constraint("Equal", 29, 33))
sketch6.addConstraint(Sketcher.Constraint("Parallel", 9, 11))
sketch6.addConstraint(Sketcher.Constraint("Parallel", 1, 17))
sketch6.addConstraint(Sketcher.Constraint("Parallel", 17, 19))
sketch6.addConstraint(Sketcher.Constraint("Perpendicular", 19, 22))
sketch6.addConstraint(Sketcher.Constraint("Parallel", 22, 28))
sketch6.addConstraint(Sketcher.Constraint("Perpendicular", 28, 30))
sketch6.addConstraint(Sketcher.Constraint("Horizontal", 18, 1, 22, 2))
sketch6.addConstraint(Sketcher.Constraint("Horizontal", 19, 2, 25, 2))
sketch6.addConstraint(Sketcher.Constraint("Horizontal", 15, 2, 26, 2))
sketch6.addConstraint(Sketcher.Constraint("Horizontal", 17, 2, 27, 1))
sketch6.addConstraint(Sketcher.Constraint("Horizontal", 13, 2, 31, 1))
sketch6.addConstraint(Sketcher.Constraint("Vertical", 13, 2, 14, 1))
sketch6.addConstraint(Sketcher.Constraint("Vertical", 33, 3, 23, 1))
sketch6.addConstraint(Sketcher.Constraint("Equal", 17, 19))
sketch6.addConstraint(Sketcher.Constraint("Equal", 9, 30))
sketch6.addConstraint(Sketcher.Constraint("Radius", 2, Q("23 mm")))
sketch6.addConstraint(Sketcher.Constraint("Radius", 0, Q("11.5 mm")))
sketch6.addConstraint(Sketcher.Constraint("DistanceY", 5, 2, 5, 1, Q("7.9 mm")))
sketch6.addConstraint(Sketcher.Constraint("DistanceX", 4, 1, 4, 2, Q("3.94 mm")))
sketch6.addConstraint(Sketcher.Constraint("DistanceX", 6, 2, 6, 1, Q("5.24 mm")))
sketch6.addConstraint(Sketcher.Constraint("DistanceY", -1, 1, 3, 2, Q("30.3 mm")))
sketch6.addConstraint(Sketcher.Constraint("DistanceY", 14, 1, 13, 2, Q("1.75 mm")))
sketch6.addConstraint(Sketcher.Constraint("DistanceX", -1, 1, 1, 2, Q("43.973 mm")))
sketch6.addConstraint(Sketcher.Constraint("DistanceX", 16, 2, 33, 3, Q("16.870401 mm")))
sketch6.addConstraint(Sketcher.Constraint("DistanceX", 30, 2, 32, 2, Q("13.710599 mm")))
sketch6.addConstraint(Sketcher.Constraint("DistanceY", 3, 2, 3, 1, Q("0.684662 mm")))
sketch6.addConstraint(Sketcher.Constraint("DistanceY", 7, 1, 7, 2, Q("8.437475 mm")))
sketch6.addConstraint(Sketcher.Constraint("DistanceY", 21, 1, 21, 2, Q("11.567038 mm")))
sketch6.addConstraint(Sketcher.Constraint("DistanceX", -1, 1, 2, 2, Q("25.773039 mm")))
sketch6.addConstraint(Sketcher.Constraint("DistanceY", -1, 1, 10, 1, Q("15.77512 mm")))
sketch6.addConstraint(Sketcher.Constraint("DistanceY", -1, 1, 11, 2, Q("23.483909 mm")))
pocket5 = doc.addObject("PartDesign::Pocket", "Pocket004")
body.addObject(pocket5)
pocket5.Profile = sketch6
pocket5.Length = 0.5

doc.recompute()
